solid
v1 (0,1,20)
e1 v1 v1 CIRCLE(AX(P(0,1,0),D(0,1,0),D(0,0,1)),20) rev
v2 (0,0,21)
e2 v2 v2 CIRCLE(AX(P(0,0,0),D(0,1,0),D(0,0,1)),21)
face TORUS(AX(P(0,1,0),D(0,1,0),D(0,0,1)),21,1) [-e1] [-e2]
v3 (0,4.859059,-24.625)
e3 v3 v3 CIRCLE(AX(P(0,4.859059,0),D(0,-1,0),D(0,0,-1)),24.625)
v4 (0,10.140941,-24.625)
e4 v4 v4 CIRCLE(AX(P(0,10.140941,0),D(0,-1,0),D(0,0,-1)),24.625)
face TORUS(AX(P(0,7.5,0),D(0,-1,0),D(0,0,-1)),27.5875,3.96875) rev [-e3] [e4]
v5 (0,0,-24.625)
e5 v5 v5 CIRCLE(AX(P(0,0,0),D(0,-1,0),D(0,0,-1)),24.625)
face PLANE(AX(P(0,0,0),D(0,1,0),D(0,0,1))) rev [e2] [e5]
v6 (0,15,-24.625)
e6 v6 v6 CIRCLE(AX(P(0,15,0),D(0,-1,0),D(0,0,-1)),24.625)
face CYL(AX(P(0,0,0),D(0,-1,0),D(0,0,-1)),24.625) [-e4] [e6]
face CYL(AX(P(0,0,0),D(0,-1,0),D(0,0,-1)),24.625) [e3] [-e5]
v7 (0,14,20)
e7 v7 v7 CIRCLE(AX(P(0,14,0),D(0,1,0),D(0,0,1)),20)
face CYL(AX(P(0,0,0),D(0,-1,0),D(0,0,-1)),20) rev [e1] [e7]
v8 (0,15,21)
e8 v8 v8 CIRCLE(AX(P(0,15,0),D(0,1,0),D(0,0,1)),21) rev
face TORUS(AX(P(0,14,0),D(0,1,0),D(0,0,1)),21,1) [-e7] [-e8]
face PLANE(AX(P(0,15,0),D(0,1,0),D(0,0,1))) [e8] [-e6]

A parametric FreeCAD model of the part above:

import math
import FreeCAD as App
import Part
import Sketcher
Q = App.Units.Quantity


def edges_at(feature, points):
    """Names of the edges that pass closest to the given points."""
    edges = feature.Shape.Edges
    near = lambda p: min(range(len(edges)), key=lambda i: edges[i].distToShape(Part.Vertex(*p))[0])
    return sorted({f"Edge{near(p) + 1}" for p in points})

doc = App.newDocument("Part")
params = doc.addObject("Spreadsheet::Sheet", "Params")
for row, (alias, value) in enumerate([
    ("sketch1_height", "15 mm"),
    ("revolution_angle", "360 deg"),
    ("fillet_radius", "1 mm"),
], start=1):
    params.set(f"A{row}", alias)
    params.set(f"B{row}", "=" + value)
    params.setAlias(f"B{row}", alias)

body = doc.addObject("PartDesign::Body", "Body")

sketch1 = body.newObject("Sketcher::SketchObject", "Sketch")
sketch1.AttachmentSupport = (doc.getObject("XY_Plane"), [""])
sketch1.MapMode = "FlatFace"
sketch1.addGeometry(Part.ArcOfCircle(Part.Circle(App.Vector(-27.5875, 7.5, 0), App.Vector(0, 0, 1), 3.96875), math.radians(-41.715629), math.radians(0)), False)
sketch1.addGeometry(Part.LineSegment(App.Vector(-24.625, 4.859059, 0), App.Vector(-24.625, 0, 0)), False)
sketch1.addGeometry(Part.LineSegment(App.Vector(-24.625, 0, 0), App.Vector(-20, 0, 0)), False)
sketch1.addGeometry(Part.LineSegment(App.Vector(-20, 0, 0), App.Vector(-20, 15, 0)), False)
sketch1.addGeometry(Part.LineSegment(App.Vector(-20, 15, 0), App.Vector(-24.625, 15, 0)), False)
sketch1.addGeometry(Part.LineSegment(App.Vector(-24.625, 15, 0), App.Vector(-24.625, 10.140941, 0)), False)
sketch1.addGeometry(Part.ArcOfCircle(Part.Circle(App.Vector(-27.5875, 7.5, 0), App.Vector(0, 0, 1), 3.96875), math.radians(0), math.radians(41.715629)), False)
sketch1.addConstraint(Sketcher.Constraint("Coincident", 0, 1, 1, 1))
sketch1.addConstraint(Sketcher.Constraint("Coincident", 1, 2, 2, 1))
sketch1.addConstraint(Sketcher.Constraint("Coincident", 2, 2, 3, 1))
sketch1.addConstraint(Sketcher.Constraint("Coincident", 3, 2, 4, 1))
sketch1.addConstraint(Sketcher.Constraint("Coincident", 4, 2, 5, 1))
sketch1.addConstraint(Sketcher.Constraint("Coincident", 5, 2, 6, 2))
sketch1.addConstraint(Sketcher.Constraint("Tangent", 6, 1, 0, 2))
sketch1.addConstraint(Sketcher.Constraint("Vertical", 1))
sketch1.addConstraint(Sketcher.Constraint("Horizontal", 2))
sketch1.addConstraint(Sketcher.Constraint("Vertical", 3))
sketch1.addConstraint(Sketcher.Constraint("Horizontal", 4))
sketch1.addConstraint(Sketcher.Constraint("Vertical", 5))
sketch1.addConstraint(Sketcher.Constraint("Equal", 0, 6))
sketch1.addConstraint(Sketcher.Constraint("PointOnObject", 1, 2, -1))
sketch1.addConstraint(Sketcher.Constraint("Horizontal", 0, 3, 6, 1))
sketch1.addConstraint(Sketcher.Constraint("Vertical", 1, 2, 4, 2))
sketch1.addConstraint(Sketcher.Constraint("Equal", 1, 5))
sketch1.addConstraint(Sketcher.Constraint("DistanceY", 3, 1, 3, 2, Q("15 mm")))
sketch1.addConstraint(Sketcher.Constraint("DistanceX", 2, 2, -1, 1, Q("20 mm")))
sketch1.addConstraint(Sketcher.Constraint("DistanceX", 2, 1, 2, 2, Q("4.625 mm")))
sketch1.addConstraint(Sketcher.Constraint("Radius", 0, Q("3.96875 mm")))
sketch1.addConstraint(Sketcher.Constraint("DistanceY", 1, 2, 1, 1, Q("4.859059 mm")))
sketch1.setExpression("Constraints[17]", "Params.sketch1_height")
revolution = body.newObject("PartDesign::Revolution", "Revolution")
revolution.Profile = sketch1
revolution.ReferenceAxis = (sketch1, ["V_Axis"])
revolution.setExpression("Angle", "Params.revolution_angle")
doc.recompute()

fillet = body.newObject("PartDesign::Fillet", "Fillet")
fillet.Base = (revolution, edges_at(revolution, [(0, 15, 20), (0, 0, 20)]))
fillet.setExpression("Radius", "Params.fillet_radius")

doc.recompute()
